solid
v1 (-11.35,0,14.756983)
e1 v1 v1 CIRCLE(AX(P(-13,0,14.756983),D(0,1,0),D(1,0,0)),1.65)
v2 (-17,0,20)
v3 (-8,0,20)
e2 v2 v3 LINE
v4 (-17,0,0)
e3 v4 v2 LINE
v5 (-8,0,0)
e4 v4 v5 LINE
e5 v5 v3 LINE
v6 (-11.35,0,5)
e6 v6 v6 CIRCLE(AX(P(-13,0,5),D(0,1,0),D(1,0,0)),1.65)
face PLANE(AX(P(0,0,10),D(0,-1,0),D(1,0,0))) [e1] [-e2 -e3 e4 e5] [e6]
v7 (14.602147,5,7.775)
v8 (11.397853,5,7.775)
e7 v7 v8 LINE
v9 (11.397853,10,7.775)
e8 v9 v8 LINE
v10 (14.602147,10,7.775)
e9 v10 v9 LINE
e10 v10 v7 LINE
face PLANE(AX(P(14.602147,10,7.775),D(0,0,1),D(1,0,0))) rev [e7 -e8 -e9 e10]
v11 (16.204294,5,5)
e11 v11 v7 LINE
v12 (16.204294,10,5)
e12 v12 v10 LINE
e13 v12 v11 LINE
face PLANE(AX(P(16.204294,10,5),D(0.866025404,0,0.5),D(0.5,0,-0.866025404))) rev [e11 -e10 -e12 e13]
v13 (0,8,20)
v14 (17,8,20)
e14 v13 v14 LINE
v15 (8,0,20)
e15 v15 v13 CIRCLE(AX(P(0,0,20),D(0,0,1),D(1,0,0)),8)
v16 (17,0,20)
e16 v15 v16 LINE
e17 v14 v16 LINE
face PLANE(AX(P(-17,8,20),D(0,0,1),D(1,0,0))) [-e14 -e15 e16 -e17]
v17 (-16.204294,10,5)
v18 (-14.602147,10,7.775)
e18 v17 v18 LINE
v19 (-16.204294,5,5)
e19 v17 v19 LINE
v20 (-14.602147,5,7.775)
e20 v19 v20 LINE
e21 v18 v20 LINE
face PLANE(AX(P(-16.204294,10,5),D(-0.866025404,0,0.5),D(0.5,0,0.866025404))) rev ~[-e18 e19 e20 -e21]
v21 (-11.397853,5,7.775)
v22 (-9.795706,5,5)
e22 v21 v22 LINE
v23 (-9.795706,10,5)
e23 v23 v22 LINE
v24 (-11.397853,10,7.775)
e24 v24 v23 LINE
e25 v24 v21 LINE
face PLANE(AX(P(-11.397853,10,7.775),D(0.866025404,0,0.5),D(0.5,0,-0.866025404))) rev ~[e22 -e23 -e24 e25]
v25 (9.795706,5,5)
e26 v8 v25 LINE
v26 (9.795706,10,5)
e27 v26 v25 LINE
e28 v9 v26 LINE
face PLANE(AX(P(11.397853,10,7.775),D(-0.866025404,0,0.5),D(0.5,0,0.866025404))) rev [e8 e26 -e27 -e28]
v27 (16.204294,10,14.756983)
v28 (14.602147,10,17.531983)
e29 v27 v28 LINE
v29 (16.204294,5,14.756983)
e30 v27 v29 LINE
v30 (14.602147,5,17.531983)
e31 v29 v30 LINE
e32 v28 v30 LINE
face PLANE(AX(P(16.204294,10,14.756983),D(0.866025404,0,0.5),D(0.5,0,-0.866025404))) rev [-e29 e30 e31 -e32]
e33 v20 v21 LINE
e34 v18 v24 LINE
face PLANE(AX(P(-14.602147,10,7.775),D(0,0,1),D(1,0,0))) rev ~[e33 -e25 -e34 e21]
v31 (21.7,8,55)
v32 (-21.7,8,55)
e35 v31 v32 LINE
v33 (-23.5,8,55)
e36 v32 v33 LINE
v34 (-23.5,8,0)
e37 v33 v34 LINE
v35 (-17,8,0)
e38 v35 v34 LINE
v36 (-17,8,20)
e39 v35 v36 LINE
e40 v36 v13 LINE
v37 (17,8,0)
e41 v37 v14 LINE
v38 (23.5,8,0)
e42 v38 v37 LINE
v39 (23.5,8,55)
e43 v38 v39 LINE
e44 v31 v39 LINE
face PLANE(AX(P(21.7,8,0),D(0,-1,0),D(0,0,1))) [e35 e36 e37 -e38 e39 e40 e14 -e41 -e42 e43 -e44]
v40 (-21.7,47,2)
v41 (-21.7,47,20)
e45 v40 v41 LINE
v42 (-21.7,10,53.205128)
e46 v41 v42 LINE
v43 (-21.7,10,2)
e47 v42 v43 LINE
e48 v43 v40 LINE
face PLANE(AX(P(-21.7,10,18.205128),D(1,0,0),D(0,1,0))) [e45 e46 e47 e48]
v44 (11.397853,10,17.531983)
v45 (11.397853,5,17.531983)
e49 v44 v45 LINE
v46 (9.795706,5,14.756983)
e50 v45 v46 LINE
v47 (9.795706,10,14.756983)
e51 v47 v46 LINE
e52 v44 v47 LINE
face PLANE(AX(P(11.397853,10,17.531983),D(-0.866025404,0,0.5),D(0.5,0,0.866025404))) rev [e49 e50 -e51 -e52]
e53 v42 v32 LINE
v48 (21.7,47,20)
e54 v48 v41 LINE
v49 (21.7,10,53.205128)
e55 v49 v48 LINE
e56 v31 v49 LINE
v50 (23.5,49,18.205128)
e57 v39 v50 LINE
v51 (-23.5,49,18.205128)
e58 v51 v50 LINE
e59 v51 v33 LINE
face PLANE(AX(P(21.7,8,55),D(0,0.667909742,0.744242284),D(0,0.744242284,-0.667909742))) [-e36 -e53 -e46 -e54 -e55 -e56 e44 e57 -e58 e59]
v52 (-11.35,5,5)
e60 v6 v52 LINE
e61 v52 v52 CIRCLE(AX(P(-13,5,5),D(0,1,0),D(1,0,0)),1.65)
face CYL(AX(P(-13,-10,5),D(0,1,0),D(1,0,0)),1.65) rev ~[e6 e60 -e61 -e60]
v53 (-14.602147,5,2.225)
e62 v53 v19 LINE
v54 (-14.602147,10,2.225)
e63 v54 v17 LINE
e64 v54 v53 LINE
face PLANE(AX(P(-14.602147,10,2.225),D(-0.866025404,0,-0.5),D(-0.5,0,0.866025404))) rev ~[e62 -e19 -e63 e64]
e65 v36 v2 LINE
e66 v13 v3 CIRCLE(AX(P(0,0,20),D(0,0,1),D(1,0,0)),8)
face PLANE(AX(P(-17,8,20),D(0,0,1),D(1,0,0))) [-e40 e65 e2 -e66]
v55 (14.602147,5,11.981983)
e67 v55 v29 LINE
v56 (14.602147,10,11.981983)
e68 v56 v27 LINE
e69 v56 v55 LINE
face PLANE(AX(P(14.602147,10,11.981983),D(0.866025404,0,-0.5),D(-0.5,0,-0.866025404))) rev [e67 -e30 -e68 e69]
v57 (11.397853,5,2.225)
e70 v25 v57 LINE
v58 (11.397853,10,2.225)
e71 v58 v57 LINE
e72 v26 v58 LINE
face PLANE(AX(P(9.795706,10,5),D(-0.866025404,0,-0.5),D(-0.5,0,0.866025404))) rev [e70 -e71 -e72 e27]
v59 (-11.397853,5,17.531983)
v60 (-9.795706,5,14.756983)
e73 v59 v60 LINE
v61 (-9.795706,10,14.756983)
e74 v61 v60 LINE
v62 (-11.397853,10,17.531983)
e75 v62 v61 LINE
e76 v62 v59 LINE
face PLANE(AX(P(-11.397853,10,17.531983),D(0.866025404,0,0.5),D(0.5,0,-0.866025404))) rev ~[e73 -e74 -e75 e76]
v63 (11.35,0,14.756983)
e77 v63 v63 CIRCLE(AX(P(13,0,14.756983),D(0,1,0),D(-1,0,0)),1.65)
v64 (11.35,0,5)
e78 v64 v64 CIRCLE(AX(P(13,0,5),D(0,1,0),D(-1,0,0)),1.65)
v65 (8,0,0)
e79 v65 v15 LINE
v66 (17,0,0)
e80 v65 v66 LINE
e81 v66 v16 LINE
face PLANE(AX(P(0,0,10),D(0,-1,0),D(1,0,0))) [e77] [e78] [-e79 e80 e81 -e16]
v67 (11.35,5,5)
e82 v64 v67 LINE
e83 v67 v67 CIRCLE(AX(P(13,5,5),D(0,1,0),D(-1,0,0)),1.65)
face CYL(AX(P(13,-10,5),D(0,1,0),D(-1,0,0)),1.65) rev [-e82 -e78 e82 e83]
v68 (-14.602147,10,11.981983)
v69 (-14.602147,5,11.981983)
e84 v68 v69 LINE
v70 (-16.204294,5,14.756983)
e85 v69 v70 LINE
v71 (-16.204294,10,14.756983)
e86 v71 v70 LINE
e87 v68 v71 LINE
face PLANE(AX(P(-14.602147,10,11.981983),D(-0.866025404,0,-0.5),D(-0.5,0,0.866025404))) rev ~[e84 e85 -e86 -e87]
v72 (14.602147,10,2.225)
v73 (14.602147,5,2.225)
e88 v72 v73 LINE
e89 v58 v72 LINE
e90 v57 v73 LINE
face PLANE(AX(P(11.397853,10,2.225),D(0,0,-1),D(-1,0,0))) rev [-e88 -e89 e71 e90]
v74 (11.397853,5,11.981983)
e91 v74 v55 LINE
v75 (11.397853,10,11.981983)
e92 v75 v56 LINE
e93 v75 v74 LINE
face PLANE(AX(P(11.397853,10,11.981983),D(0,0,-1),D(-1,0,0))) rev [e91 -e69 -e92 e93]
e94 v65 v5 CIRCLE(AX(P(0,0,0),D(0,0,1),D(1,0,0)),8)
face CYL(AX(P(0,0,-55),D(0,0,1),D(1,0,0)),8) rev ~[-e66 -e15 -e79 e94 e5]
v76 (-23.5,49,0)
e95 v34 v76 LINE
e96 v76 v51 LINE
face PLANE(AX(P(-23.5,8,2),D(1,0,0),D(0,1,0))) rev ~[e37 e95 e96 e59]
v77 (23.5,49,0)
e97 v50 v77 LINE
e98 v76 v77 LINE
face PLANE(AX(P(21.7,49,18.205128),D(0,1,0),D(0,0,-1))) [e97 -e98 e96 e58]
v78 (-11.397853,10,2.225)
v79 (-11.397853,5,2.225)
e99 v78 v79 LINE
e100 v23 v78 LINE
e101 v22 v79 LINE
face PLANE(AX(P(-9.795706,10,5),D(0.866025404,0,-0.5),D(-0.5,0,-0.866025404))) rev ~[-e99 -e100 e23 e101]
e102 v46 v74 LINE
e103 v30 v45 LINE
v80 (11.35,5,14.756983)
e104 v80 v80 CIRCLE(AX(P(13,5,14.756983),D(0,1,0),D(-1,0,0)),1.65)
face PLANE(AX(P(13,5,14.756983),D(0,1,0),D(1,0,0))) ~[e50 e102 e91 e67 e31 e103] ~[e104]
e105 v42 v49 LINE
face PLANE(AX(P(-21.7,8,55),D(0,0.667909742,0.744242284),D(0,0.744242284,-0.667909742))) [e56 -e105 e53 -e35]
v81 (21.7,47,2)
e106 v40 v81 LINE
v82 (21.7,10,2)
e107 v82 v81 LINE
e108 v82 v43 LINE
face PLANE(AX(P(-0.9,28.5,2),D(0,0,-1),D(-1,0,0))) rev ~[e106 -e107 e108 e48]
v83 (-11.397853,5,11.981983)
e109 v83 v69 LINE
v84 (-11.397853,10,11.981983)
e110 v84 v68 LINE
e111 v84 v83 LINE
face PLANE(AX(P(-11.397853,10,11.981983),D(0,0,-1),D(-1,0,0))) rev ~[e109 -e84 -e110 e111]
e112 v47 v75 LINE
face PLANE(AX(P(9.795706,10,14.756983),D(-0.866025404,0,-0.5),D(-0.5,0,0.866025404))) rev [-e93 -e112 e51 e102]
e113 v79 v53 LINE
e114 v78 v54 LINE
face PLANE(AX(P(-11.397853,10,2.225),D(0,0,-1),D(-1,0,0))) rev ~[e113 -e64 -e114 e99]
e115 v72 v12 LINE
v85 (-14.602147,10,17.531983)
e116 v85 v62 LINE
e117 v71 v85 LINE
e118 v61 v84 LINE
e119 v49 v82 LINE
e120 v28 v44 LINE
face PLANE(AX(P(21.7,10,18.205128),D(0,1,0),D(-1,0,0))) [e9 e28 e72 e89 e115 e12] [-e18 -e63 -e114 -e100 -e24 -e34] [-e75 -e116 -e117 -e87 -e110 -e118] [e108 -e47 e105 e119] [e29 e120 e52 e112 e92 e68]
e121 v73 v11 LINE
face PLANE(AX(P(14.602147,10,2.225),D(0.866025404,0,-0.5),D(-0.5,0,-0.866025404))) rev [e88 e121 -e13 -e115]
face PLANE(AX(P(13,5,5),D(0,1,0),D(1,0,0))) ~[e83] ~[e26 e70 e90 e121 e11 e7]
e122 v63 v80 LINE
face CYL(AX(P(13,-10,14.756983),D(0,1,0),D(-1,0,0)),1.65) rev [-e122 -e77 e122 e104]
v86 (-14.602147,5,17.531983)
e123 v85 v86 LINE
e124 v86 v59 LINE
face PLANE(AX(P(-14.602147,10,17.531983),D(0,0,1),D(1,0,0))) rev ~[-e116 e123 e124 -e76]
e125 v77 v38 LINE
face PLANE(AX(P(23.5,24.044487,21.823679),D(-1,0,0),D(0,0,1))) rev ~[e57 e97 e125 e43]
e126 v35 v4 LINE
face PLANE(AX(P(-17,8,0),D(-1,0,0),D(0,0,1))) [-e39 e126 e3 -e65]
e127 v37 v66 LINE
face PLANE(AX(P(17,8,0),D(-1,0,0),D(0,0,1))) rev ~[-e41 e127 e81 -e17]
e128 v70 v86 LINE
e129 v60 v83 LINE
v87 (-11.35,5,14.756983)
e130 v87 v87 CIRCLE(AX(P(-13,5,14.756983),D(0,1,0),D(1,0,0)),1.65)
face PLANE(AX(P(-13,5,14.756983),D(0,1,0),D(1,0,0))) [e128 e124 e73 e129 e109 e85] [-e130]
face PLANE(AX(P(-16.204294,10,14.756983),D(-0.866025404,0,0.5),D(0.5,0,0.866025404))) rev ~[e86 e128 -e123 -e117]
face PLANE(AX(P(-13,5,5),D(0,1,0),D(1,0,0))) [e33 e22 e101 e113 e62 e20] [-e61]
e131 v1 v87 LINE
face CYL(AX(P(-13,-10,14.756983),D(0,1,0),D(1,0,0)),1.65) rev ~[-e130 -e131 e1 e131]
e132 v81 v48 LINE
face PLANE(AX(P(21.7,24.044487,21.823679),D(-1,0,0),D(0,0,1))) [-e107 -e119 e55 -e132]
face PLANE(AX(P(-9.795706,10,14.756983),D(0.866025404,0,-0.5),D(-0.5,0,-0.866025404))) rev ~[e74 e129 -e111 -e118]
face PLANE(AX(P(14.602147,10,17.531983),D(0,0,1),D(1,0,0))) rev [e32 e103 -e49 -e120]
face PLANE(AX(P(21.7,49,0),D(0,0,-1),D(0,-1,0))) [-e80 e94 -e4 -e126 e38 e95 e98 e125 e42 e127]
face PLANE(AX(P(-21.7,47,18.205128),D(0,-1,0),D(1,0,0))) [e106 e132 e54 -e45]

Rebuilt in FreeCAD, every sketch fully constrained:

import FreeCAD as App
import Part
import Sketcher

V = App.Vector
Q = App.Units.Quantity


def add_polygon(sketch, points):
    """Adds a closed chain of lines whose ends are joined by coincident constraints."""
    first, n = sketch.GeometryCount, len(points)
    for a, b in zip(points, points[1:] + points[:1]):
        sketch.addGeometry(Part.LineSegment(App.Vector(*a, 0), App.Vector(*b, 0)), False)
    for i in range(n):
        sketch.addConstraint(Sketcher.Constraint("Coincident", first + i, 2, first + (i + 1) % n, 1))

doc = App.newDocument("Part")
body = doc.addObject("PartDesign::Body", "Body")

# Sketch on YZ plane
sketch1 = body.newObject("Sketcher::SketchObject", "Sketch")
sketch1.AttachmentSupport = (doc.getObject("YZ_Plane"), [""])
sketch1.MapMode = "FlatFace"
sketch1.AttachmentOffset = App.Placement(V(0, 0, 21.7), App.Rotation())
add_polygon(sketch1, [(8, 18), (49, 18), (8, 55)])  # lines 0-2
sketch1.addConstraint([
    Sketcher.Constraint("Horizontal", 0),
    Sketcher.Constraint("Vertical", 2),
    Sketcher.Constraint("DistanceX", 0, 1, 0, 2, 41.0),
    Sketcher.Constraint("DistanceX", -1, 1, 0, 2, 49.0),
    Sketcher.Constraint("DistanceY", -1, 1, 1, 2, 55.0),
    Sketcher.Constraint("DistanceY", 2, 2, 2, 1, 36.794872),
])
pad1 = body.newObject("PartDesign::Pad", "Pad")
pad1.Profile = sketch1
pad1.Length = 43.4
pad1.Reversed = True

# Sketch on YZ plane
sketch2 = body.newObject("Sketcher::SketchObject", "Sketch001")
sketch2.AttachmentSupport = (doc.getObject("YZ_Plane"), [""])
sketch2.MapMode = "FlatFace"
sketch2.AttachmentOffset = App.Placement(V(0, 0, -21.7), App.Rotation())
add_polygon(sketch2, [(49, 18), (8, 18), (8, 55)])  # lines 0-2
sketch2.addConstraint([
    Sketcher.Constraint("Horizontal", 0),
    Sketcher.Constraint("Vertical", 1),
    Sketcher.Constraint("DistanceX", 0, 2, 0, 1, 41.0),
    Sketcher.Constraint("DistanceX", -1, 1, 0, 2, 8.0),
    Sketcher.Constraint("DistanceY", -1, 1, 1, 2, 55.0),
    Sketcher.Constraint("DistanceY", 1, 1, 1, 2, 36.794872),
])
pad2 = body.newObject("PartDesign::Pad", "Pad001")
pad2.Profile = sketch2
pad2.Length = 1.8
pad2.Reversed = True

# Sketch on YZ plane
sketch3 = body.newObject("Sketcher::SketchObject", "Sketch002")
sketch3.AttachmentSupport = (doc.getObject("YZ_Plane"), [""])
sketch3.MapMode = "FlatFace"
sketch3.AttachmentOffset = App.Placement(V(0, 0, 21.7), App.Rotation())
add_polygon(sketch3, [(8, 18.2), (47, 18.2), (47, 20), (8, 55)])  # lines 0-3
sketch3.addConstraint([
    Sketcher.Constraint("Horizontal", 0),
    Sketcher.Constraint("Vertical", 1),
    Sketcher.Constraint("Vertical", 3),
    Sketcher.Constraint("DistanceX", 0, 1, 0, 2, 39.0),
    Sketcher.Constraint("DistanceX", -1, 1, 0, 2, 47.0),
    Sketcher.Constraint("DistanceY", -1, 1, 1, 2, 20.0),
    Sketcher.Constraint("DistanceY", -1, 1, 2, 2, 55.0),
    Sketcher.Constraint("DistanceY", 1, 1, 1, 2, 1.794872),
])
pocket1 = body.newObject("PartDesign::Pocket", "Pocket")
pocket1.Profile = sketch3
pocket1.Length = 43.4

# Sketch on YZ plane
sketch4 = body.newObject("Sketcher::SketchObject", "Sketch003")
sketch4.AttachmentSupport = (doc.getObject("YZ_Plane"), [""])
sketch4.MapMode = "FlatFace"
sketch4.AttachmentOffset = App.Placement(V(0, 0, -21.7), App.Rotation())
add_polygon(sketch4, [(8, 18.2), (10, 18.2), (10, 53.2), (8, 55)])  # lines 0-3
sketch4.addConstraint([
    Sketcher.Constraint("Horizontal", 0),
    Sketcher.Constraint("Vertical", 1),
    Sketcher.Constraint("Vertical", 3),
    Sketcher.Constraint("DistanceX", 0, 1, 0, 2, 2.0),
    Sketcher.Constraint("DistanceY", 1, 1, 1, 2, 35.0),
    Sketcher.Constraint("DistanceX", -1, 1, 0, 2, 10.0),
    Sketcher.Constraint("DistanceY", -1, 1, 2, 2, 55.0),
    Sketcher.Constraint("DistanceY", 3, 2, 3, 1, 36.794872),
])
pad3 = body.newObject("PartDesign::Pad", "Pad002")
pad3.Profile = sketch4
pad3.Length = 43.4

# Sketch on XY plane
sketch5 = body.newObject("Sketcher::SketchObject", "Sketch004")
sketch5.AttachmentSupport = (doc.getObject("XY_Plane"), [""])
sketch5.MapMode = "FlatFace"
sketch5.AttachmentOffset = App.Placement(V(0, 0, 18.205128), App.Rotation())
add_polygon(sketch5, [(-21.7, 47), (-21.7, 10), (21.7, 10), (21.7, 8), (-23.5, 8), (-23.5, 49), (21.7, 49), (21.7, 47)])  # lines 0-7
sketch5.addConstraint([
    Sketcher.Constraint("Vertical", 0),
    Sketcher.Constraint("Horizontal", 1),
    Sketcher.Constraint("Vertical", 2),
    Sketcher.Constraint("Horizontal", 3),
    Sketcher.Constraint("Vertical", 4),
    Sketcher.Constraint("Horizontal", 5),
    Sketcher.Constraint("Vertical", 6),
    Sketcher.Constraint("Horizontal", 7),
    Sketcher.Constraint("Vertical", 2, 2, 5, 2),
    Sketcher.Constraint("Equal", 2, 6),
    Sketcher.Constraint("DistanceY", 0, 2, 0, 1, 37.0),
    Sketcher.Constraint("DistanceY", 2, 2, 2, 1, 2.0),
    Sketcher.Constraint("DistanceX", 1, 1, 1, 2, 43.4),
    Sketcher.Constraint("DistanceX", 3, 2, 3, 1, 45.2),
    Sketcher.Constraint("DistanceY", -1, 1, 0, 2, 10.0),
    Sketcher.Constraint("DistanceX", 0, 2, -1, 1, 21.7),
])
pad4 = body.newObject("PartDesign::Pad", "Pad003")
pad4.Profile = sketch5
pad4.Length = 16.205128
pad4.Reversed = True

# Sketch on XY plane
sketch6 = body.newObject("Sketcher::SketchObject", "Sketch005")
sketch6.AttachmentSupport = (doc.getObject("XY_Plane"), [""])
sketch6.MapMode = "FlatFace"
sketch6.AttachmentOffset = App.Placement(V(0, 0, 2), App.Rotation())
add_polygon(sketch6, [(22, 49), (22, 8), (-24, 8), (-24, 49)])  # lines 0-3
sketch6.addConstraint([
    Sketcher.Constraint("Vertical", 0),
    Sketcher.Constraint("Horizontal", 1),
    Sketcher.Constraint("Vertical", 2),
    Sketcher.Constraint("Horizontal", 3),
    Sketcher.Constraint("DistanceY", 0, 2, 0, 1, 41.0),
    Sketcher.Constraint("DistanceX", 1, 2, 1, 1, 45.2),
    Sketcher.Constraint("DistanceY", -1, 1, 0, 2, 8.0),
    Sketcher.Constraint("DistanceX", -1, 1, 0, 2, 21.7),
])
pad5 = body.newObject("PartDesign::Pad", "Pad004")
pad5.Profile = sketch6
pad5.Length = 2
pad5.Reversed = True

# Sketch on XZ plane
sketch7 = body.newObject("Sketcher::SketchObject", "Sketch006")
sketch7.AttachmentSupport = (doc.getObject("XZ_Plane"), [""])
sketch7.MapMode = "FlatFace"
sketch7.AttachmentOffset = App.Placement(V(0, 0, -8), App.Rotation())
add_polygon(sketch7, [(-17, 20), (-17, 0), (17, 0), (17, 20)])  # lines 0-3
sketch7.addConstraint([
    Sketcher.Constraint("Vertical", 0),
    Sketcher.Constraint("Horizontal", 1),
    Sketcher.Constraint("Vertical", 2),
    Sketcher.Constraint("Horizontal", 3),
    Sketcher.Constraint("Symmetric", 0, 2, 1, 2, -1, 1),
    Sketcher.Constraint("DistanceX", 1, 1, 1, 2, 34.0),
    Sketcher.Constraint("DistanceY", 0, 2, 0, 1, 20.0),
])
pad6 = body.newObject("PartDesign::Pad", "Pad005")
pad6.Profile = sketch7
pad6.Length = 8

# Sketch on YZ plane
sketch8 = body.newObject("Sketcher::SketchObject", "Sketch007")
sketch8.AttachmentSupport = (doc.getObject("YZ_Plane"), [""])
sketch8.MapMode = "FlatFace"
sketch8.AttachmentOffset = App.Placement(V(0, 0, 21.7), App.Rotation())
add_polygon(sketch8, [(8, 0), (49, 0), (49, 18), (8, 55)])  # lines 0-3
sketch8.addConstraint([
    Sketcher.Constraint("Horizontal", 0),
    Sketcher.Constraint("Vertical", 1),
    Sketcher.Constraint("Vertical", 3),
    Sketcher.Constraint("PointOnObject", 0, 2, -1),
    Sketcher.Constraint("DistanceX", 0, 1, 0, 2, 41.0),
    Sketcher.Constraint("DistanceY", 3, 2, 3, 1, 55.0),
    Sketcher.Constraint("DistanceX", -1, 1, 0, 2, 49.0),
    Sketcher.Constraint("DistanceY", 1, 1, 1, 2, 18.205128),
])
pad7 = body.newObject("PartDesign::Pad", "Pad006")
pad7.Profile = sketch8
pad7.Length = 1.8

# Sketch on XZ plane
sketch9 = body.newObject("Sketcher::SketchObject", "Sketch008")
sketch9.AttachmentSupport = (doc.getObject("XZ_Plane"), [""])
sketch9.MapMode = "FlatFace"
sketch9.addGeometry([
    Part.Circle(V(-13, 5, 0), V(0, 0, 1), 1.6),
    Part.Circle(V(-13, 14.8, 0), V(0, 0, 1), 1.6),
], False)
sketch9.addConstraint([
    Sketcher.Constraint("Equal", 0, 1),
    Sketcher.Constraint("Vertical", 0, 3, 1, 3),
    Sketcher.Constraint("Diameter", 0, 3.3),
    Sketcher.Constraint("DistanceX", 0, 3, -1, 1, 13.0),
    Sketcher.Constraint("DistanceY", -1, 1, 0, 3, 5.0),
    Sketcher.Constraint("DistanceY", -1, 1, 1, 3, 14.756983),
])
doc.recompute()
hole = body.newObject("PartDesign::Hole", "Hole")
hole.Profile = sketch9
hole.ThreadType = "None"
hole.Diameter = 3.3
hole.DepthType = "Dimension"
hole.Depth = 10
hole.DrillPoint = "Flat"

# Sketch on XY plane
sketch10 = body.newObject("Sketcher::SketchObject", "Sketch009")
sketch10.AttachmentSupport = (doc.getObject("XY_Plane"), [""])
sketch10.MapMode = "FlatFace"
sketch10.addGeometry(Part.Circle(V(0, 0, 0), V(0, 0, 1), 8), False)
sketch10.addConstraint([
    Sketcher.Constraint("Coincident", 0, 3, -1, 1),
    Sketcher.Constraint("Diameter", 0, 16.0),
])
doc.recompute()
hole2 = body.newObject("PartDesign::Hole", "Hole001")
hole2.Profile = sketch10
hole2.ThreadType = "None"
hole2.Diameter = 16
hole2.DepthType = "Dimension"
hole2.Depth = 55
hole2.DrillPoint = "Flat"
hole2.Reversed = True

# Sketch on XZ plane
sketch11 = body.newObject("Sketcher::SketchObject", "Sketch010")
sketch11.AttachmentSupport = (doc.getObject("XZ_Plane"), [""])
sketch11.MapMode = "FlatFace"
sketch11.AttachmentOffset = App.Placement(V(0, 0, -10), App.Rotation())
add_polygon(sketch11, [(-9.8, 14.8), (-11.4, 12), (-14.6, 12), (-16.2, 14.8), (-14.6, 17.5), (-11.4, 17.5)])  # lines 0-5
sketch11.addGeometry(Part.Circle(V(-13, 14.8, 0), V(0, 0, 1), 1.6), False)  # 6
add_polygon(sketch11, [(-9.8, 5), (-11.4, 2.2), (-14.6, 2.2), (-16.2, 5), (-14.6, 7.8), (-11.4, 7.8)])  # lines 7-12
sketch11.addGeometry(Part.Circle(V(-13, 5, 0), V(0, 0, 1), 1.6), False)  # 13
sketch11.addConstraint([
    Sketcher.Constraint("Horizontal", 1),
    Sketcher.Constraint("Horizontal", 4),
    Sketcher.Constraint("Horizontal", 8),
    Sketcher.Constraint("Horizontal", 11),
    Sketcher.Constraint("Equal", 6, 13),
    Sketcher.Constraint("Parallel", 0, 3),
    Sketcher.Constraint("Parallel", 2, 5),
    Sketcher.Constraint("Parallel", 3, 7),
    Sketcher.Constraint("Parallel", 5, 9),
    Sketcher.Constraint("Parallel", 7, 10),
    Sketcher.Constraint("Parallel", 9, 12),
    Sketcher.Constraint("Horizontal", 6, 3, 2, 2),
    Sketcher.Constraint("Horizontal", 2, 2, 5, 2),
    Sketcher.Constraint("Horizontal", 13, 3, 9, 2),
    Sketcher.Constraint("Horizontal", 9, 2, 12, 2),
    Sketcher.Constraint("Vertical", 6, 3, 13, 3),
    Sketcher.Constraint("Vertical", 1, 2, 3, 2),
    Sketcher.Constraint("Vertical", 0, 2, 4, 2),
    Sketcher.Constraint("Vertical", 4, 2, 7, 2),
    Sketcher.Constraint("Vertical", 3, 2, 8, 2),
    Sketcher.Constraint("Vertical", 2, 2, 9, 2),
    Sketcher.Constraint("Vertical", 8, 2, 10, 2),
    Sketcher.Constraint("Diameter", 6, 3.3),
    Sketcher.Constraint("Angle", 0, Q("-120 deg")),
    Sketcher.Constraint("DistanceX", 6, 3, -1, 1, 13.0),
    Sketcher.Constraint("DistanceY", -1, 1, 13, 3, 5.0),
    Sketcher.Constraint("DistanceY", 1, 2, 3, 2, 5.55),
    Sketcher.Constraint("DistanceX", 1, 2, 1, 1, 3.204294),
    Sketcher.Constraint("DistanceY", -1, 1, 6, 3, 14.756983),
    Sketcher.Constraint("DistanceX", 0, 2, -1, 1, 11.397853),
])
pocket2 = body.newObject("PartDesign::Pocket", "Pocket001")
pocket2.Profile = sketch11
pocket2.Length = 5
pocket2.Reversed = True
doc.recompute()

mirrored = body.newObject("PartDesign::Mirrored", "Mirrored")
mirrored.Originals = [hole, pocket2]
mirrored.MirrorPlane = (doc.getObject("YZ_Plane"), [""])
body.Tip = mirrored

doc.recompute()
